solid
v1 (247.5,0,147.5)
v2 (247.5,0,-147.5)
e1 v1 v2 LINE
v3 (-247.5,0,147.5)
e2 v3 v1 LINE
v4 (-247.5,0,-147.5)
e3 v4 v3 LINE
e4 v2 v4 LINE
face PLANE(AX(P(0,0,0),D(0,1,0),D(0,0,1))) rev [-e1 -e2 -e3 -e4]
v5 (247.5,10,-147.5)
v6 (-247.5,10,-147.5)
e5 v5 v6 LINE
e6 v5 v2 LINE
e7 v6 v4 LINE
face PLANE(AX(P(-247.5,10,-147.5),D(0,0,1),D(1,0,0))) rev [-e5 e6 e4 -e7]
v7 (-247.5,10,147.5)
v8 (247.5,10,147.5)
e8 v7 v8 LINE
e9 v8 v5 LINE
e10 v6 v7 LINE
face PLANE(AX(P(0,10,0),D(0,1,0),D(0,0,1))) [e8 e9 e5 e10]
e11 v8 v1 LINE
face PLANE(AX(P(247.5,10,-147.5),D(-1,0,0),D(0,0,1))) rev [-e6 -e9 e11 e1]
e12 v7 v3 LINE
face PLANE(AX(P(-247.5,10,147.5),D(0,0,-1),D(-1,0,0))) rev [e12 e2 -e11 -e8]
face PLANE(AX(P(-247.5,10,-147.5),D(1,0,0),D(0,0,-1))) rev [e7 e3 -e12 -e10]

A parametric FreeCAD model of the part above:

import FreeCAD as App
import Part
import Sketcher
Q = App.Units.Quantity

doc = App.newDocument("Part")
body = doc.addObject("PartDesign::Body", "Body")

sketch1 = body.newObject("Sketcher::SketchObject", "Sketch")
sketch1.AttachmentSupport = (doc.getObject("XZ_Plane"), [""])
sketch1.MapMode = "FlatFace"
sketch1.addGeometry([
    Part.LineSegment(App.Vector(-247.5, -147.5, 0), App.Vector(-247.5, 147.5, 0)),
    Part.LineSegment(App.Vector(-247.5, 147.5, 0), App.Vector(247.5, 147.5, 0)),
    Part.LineSegment(App.Vector(247.5, 147.5, 0), App.Vector(247.5, -147.5, 0)),
    Part.LineSegment(App.Vector(247.5, -147.5, 0), App.Vector(-247.5, -147.5, 0)),
], False)
sketch1.addConstraint([
    Sketcher.Constraint("Coincident", 0, 2, 1, 1),
    Sketcher.Constraint("Coincident", 1, 2, 2, 1),
    Sketcher.Constraint("Coincident", 2, 2, 3, 1),
    Sketcher.Constraint("Coincident", 3, 2, 0, 1),
    Sketcher.Constraint("Vertical", 0),
    Sketcher.Constraint("Horizontal", 1),
    Sketcher.Constraint("Vertical", 2),
    Sketcher.Constraint("Horizontal", 3),
    Sketcher.Constraint("Symmetric", 0, 2, 2, 2, -1, 1),
    Sketcher.Constraint("DistanceX", 1, 1, 1, 2, Q("495 mm")),
    Sketcher.Constraint("DistanceY", 0, 1, 0, 2, Q("295 mm")),
])
pad1 = body.newObject("PartDesign::Pad", "Pad")
pad1.Profile = sketch1
pad1.Length = 10
pad1.Reversed = True

doc.recompute()
